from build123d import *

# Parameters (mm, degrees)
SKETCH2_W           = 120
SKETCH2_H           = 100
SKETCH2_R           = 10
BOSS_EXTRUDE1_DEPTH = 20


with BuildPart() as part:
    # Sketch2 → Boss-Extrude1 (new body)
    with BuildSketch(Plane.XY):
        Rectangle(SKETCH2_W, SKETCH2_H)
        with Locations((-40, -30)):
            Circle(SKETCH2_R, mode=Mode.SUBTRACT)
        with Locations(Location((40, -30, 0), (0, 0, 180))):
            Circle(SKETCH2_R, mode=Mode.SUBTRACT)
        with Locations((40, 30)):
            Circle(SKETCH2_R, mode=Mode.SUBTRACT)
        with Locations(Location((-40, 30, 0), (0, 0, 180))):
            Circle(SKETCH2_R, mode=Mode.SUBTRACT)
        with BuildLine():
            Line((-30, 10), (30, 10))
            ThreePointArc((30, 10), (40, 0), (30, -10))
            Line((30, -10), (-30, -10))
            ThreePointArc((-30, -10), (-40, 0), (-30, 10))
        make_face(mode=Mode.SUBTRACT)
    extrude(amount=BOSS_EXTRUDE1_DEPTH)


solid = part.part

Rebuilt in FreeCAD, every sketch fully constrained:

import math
import FreeCAD as App
import Part
import Sketcher
Q = App.Units.Quantity

doc = App.newDocument("Part")
body = doc.addObject("PartDesign::Body", "Body")

# Sketch on XY plane
sketch1 = doc.addObject("Sketcher::SketchObject", "Sketch")
body.addObject(sketch1)
sketch1.AttachmentSupport = (doc.XY_Plane, [""])
sketch1.MapMode = "FlatFace"
sketch1.addGeometry([
    Part.LineSegment(App.Vector(-60, 50, 0), App.Vector(-60, -50, 0)),  # 0
    Part.LineSegment(App.Vector(-60, -50, 0), App.Vector(60, -50, 0)),  # 1
    Part.LineSegment(App.Vector(60, -50, 0), App.Vector(60, 50, 0)),  # 2
    Part.LineSegment(App.Vector(60, 50, 0), App.Vector(-60, 50, 0)),  # 3
    Part.Circle(App.Vector(-40, -30, 0), App.Vector(0, 0, 1), 10),  # 4
    Part.Circle(App.Vector(40, -30, 0), App.Vector(0, 0, 1), 10),  # 5
    Part.Circle(App.Vector(-40, 30, 0), App.Vector(0, 0, 1), 10),  # 6
    Part.ArcOfCircle(Part.Circle(App.Vector(-30, 0, 0), App.Vector(0, 0, 1), 10), math.radians(90), math.radians(270)),  # 7
    Part.LineSegment(App.Vector(-30, 10, 0), App.Vector(30, 10, 0)),  # 8
    Part.ArcOfCircle(Part.Circle(App.Vector(30, 0, 0), App.Vector(0, 0, 1), 10), math.radians(-90), math.radians(90)),  # 9
    Part.LineSegment(App.Vector(30, -10, 0), App.Vector(-30, -10, 0)),  # 10
    Part.Circle(App.Vector(40, 30, 0), App.Vector(0, 0, 1), 10),  # 11
], False)
sketch1.addConstraint([
    Sketcher.Constraint("Coincident", 0, 2, 1, 1),
    Sketcher.Constraint("Coincident", 1, 2, 2, 1),
    Sketcher.Constraint("Coincident", 2, 2, 3, 1),
    Sketcher.Constraint("Coincident", 3, 2, 0, 1),
    Sketcher.Constraint("Tangent", 7, 1, 8, 1),
    Sketcher.Constraint("Tangent", 8, 2, 9, 2),
    Sketcher.Constraint("Tangent", 9, 1, 10, 1),
    Sketcher.Constraint("Tangent", 10, 2, 7, 2),
    Sketcher.Constraint("Vertical", 0),
    Sketcher.Constraint("Horizontal", 1),
    Sketcher.Constraint("Vertical", 2),
    Sketcher.Constraint("Horizontal", 3),
    Sketcher.Constraint("Horizontal", 8),
    Sketcher.Constraint("Horizontal", 10),
    Sketcher.Constraint("Equal", 4, 5),
    Sketcher.Constraint("Equal", 5, 6),
    Sketcher.Constraint("Equal", 6, 7),
    Sketcher.Constraint("Equal", 9, 11),
    Sketcher.Constraint("Symmetric", 5, 3, 6, 3, -1, 1),
    Sketcher.Constraint("Symmetric", 7, 3, 9, 3, -1, 1),
    Sketcher.Constraint("Symmetric", 4, 3, 11, 3, -1, 1),
    Sketcher.Constraint("Symmetric", 0, 2, 2, 2, -1, 1),
    Sketcher.Constraint("Symmetric", 4, 3, 5, 3, -2),
    Sketcher.Constraint("Diameter", 4, Q("20 mm")),
    Sketcher.Constraint("DistanceX", 1, 1, 1, 2, Q("120 mm")),
    Sketcher.Constraint("DistanceX", 8, 1, 8, 2, Q("60 mm")),
    Sketcher.Constraint("DistanceY", 0, 2, 0, 1, Q("100 mm")),
    Sketcher.Constraint("DistanceX", 4, 3, -1, 1, Q("40 mm")),
    Sketcher.Constraint("DistanceY", 4, 3, -1, 1, Q("30 mm")),
])
pad1 = doc.addObject("PartDesign::Pad", "Pad")
body.addObject(pad1)
pad1.Profile = sketch1
pad1.Length = 20

doc.recompute()
